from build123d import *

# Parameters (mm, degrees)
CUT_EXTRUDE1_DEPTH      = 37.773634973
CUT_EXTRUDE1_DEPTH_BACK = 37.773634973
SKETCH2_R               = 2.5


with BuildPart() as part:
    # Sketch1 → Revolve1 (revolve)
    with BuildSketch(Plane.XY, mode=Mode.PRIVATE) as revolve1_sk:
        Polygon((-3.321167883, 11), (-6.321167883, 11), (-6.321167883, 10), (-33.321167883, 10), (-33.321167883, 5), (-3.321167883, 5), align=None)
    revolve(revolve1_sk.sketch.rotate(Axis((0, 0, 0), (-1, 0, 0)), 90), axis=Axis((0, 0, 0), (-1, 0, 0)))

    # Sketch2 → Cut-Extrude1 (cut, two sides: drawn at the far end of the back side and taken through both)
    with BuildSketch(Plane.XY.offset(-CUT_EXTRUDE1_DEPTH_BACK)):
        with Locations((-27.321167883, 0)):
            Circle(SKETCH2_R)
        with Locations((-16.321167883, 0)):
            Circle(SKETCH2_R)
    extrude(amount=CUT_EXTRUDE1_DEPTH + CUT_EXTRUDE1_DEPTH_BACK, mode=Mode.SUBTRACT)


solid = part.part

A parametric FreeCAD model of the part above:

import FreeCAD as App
import Part
import Sketcher
from FreeCAD import Vector
Q = App.Units.Quantity


def add_polygon(sketch, points):
    """Adds a closed chain of lines whose ends are joined by coincident constraints."""
    first, n = sketch.GeometryCount, len(points)
    for a, b in zip(points, points[1:] + points[:1]):
        sketch.addGeometry(Part.LineSegment(App.Vector(*a, 0), App.Vector(*b, 0)), False)
    for i in range(n):
        sketch.addConstraint(Sketcher.Constraint("Coincident", first + i, 2, first + (i + 1) % n, 1))

doc = App.newDocument("Part")
body = doc.addObject("PartDesign::Body", "Body")

sketch1 = body.newObject("Sketcher::SketchObject", "Sketch")
sketch1.AttachmentSupport = (doc.getObject("XY_Plane"), [""])
sketch1.MapMode = "FlatFace"
add_polygon(sketch1, [(-3.3, 11), (-6.3, 11), (-6.3, 10), (-33.3, 10), (-33.3, 5), (-3.3, 5)])
sketch1.addConstraint(Sketcher.Constraint("Horizontal", 0))
sketch1.addConstraint(Sketcher.Constraint("Vertical", 1))
sketch1.addConstraint(Sketcher.Constraint("Horizontal", 2))
sketch1.addConstraint(Sketcher.Constraint("Vertical", 3))
sketch1.addConstraint(Sketcher.Constraint("Horizontal", 4))
sketch1.addConstraint(Sketcher.Constraint("Vertical", 5))
sketch1.addConstraint(Sketcher.Constraint("DistanceX", 0, 2, 0, 1, Q("3 mm")))
sketch1.addConstraint(Sketcher.Constraint("DistanceX", 2, 2, 2, 1, Q("27 mm")))
sketch1.addConstraint(Sketcher.Constraint("DistanceY", 1, 2, 1, 1, Q("1 mm")))
sketch1.addConstraint(Sketcher.Constraint("DistanceY", 3, 2, 3, 1, Q("5 mm")))
sketch1.addConstraint(Sketcher.Constraint("DistanceY", -1, 1, 0, 2, Q("11 mm")))
sketch1.addConstraint(Sketcher.Constraint("DistanceX", 0, 2, -1, 1, Q("6.321168 mm")))
revolution = body.newObject("PartDesign::Revolution", "Revolution")
revolution.Profile = sketch1
revolution.ReferenceAxis = (sketch1, ["H_Axis"])
revolution.Angle = 360

sketch2 = body.newObject("Sketcher::SketchObject", "Sketch001")
sketch2.AttachmentSupport = (doc.getObject("XY_Plane"), [""])
sketch2.MapMode = "FlatFace"
sketch2.addGeometry(Part.Circle(Vector(-27.3, 0, 0), Vector(0, 0, 1), 2.5), False)
sketch2.addGeometry(Part.Circle(Vector(-16.3, 0, 0), Vector(0, 0, 1), 2.5), False)
sketch2.addConstraint(Sketcher.Constraint("Equal", 0, 1))
sketch2.addConstraint(Sketcher.Constraint("PointOnObject", 0, 3, -1))
sketch2.addConstraint(Sketcher.Constraint("PointOnObject", 1, 3, -1))
sketch2.addConstraint(Sketcher.Constraint("Diameter", 0, Q("5 mm")))
sketch2.addConstraint(Sketcher.Constraint("DistanceX", 0, 3, 1, 3, Q("11 mm")))
sketch2.addConstraint(Sketcher.Constraint("DistanceX", 0, 3, -1, 1, Q("27.321168 mm")))
pocket1 = body.newObject("PartDesign::Pocket", "Pocket")
pocket1.Profile = sketch2
pocket1.Type = "ThroughAll"
pocket1.Midplane = True

doc.recompute()
